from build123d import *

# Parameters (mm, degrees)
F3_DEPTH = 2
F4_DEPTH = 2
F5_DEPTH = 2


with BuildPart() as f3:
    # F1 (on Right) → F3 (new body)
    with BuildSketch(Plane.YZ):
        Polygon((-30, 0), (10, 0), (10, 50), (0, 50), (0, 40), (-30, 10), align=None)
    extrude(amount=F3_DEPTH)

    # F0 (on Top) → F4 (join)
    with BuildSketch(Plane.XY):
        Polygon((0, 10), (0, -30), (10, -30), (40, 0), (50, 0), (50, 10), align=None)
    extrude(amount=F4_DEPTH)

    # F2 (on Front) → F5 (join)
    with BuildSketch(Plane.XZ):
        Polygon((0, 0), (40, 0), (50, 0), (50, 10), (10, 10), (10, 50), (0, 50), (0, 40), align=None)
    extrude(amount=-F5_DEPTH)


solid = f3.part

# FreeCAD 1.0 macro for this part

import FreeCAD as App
import Part
import Sketcher
Q = App.Units.Quantity

doc = App.newDocument("Part")
body = doc.addObject("PartDesign::Body", "Body")

# Sketch on YZ plane
sketch1 = body.newObject("Sketcher::SketchObject", "Sketch")
sketch1.AttachmentSupport = (doc.getObject("YZ_Plane"), [""])
sketch1.MapMode = "FlatFace"
sketch1.addGeometry([
    Part.LineSegment(App.Vector(-30, 0, 0), App.Vector(10, 0, 0)),  # 0
    Part.LineSegment(App.Vector(10, 0, 0), App.Vector(10, 50, 0)),  # 1
    Part.LineSegment(App.Vector(10, 50, 0), App.Vector(0, 50, 0)),  # 2
    Part.LineSegment(App.Vector(0, 50, 0), App.Vector(0, 40, 0)),  # 3
    Part.LineSegment(App.Vector(0, 40, 0), App.Vector(-30, 10, 0)),  # 4
    Part.LineSegment(App.Vector(-30, 10, 0), App.Vector(-30, 0, 0)),  # 5
], False)
sketch1.addConstraint([
    Sketcher.Constraint("Coincident", 0, 2, 1, 1),
    Sketcher.Constraint("Coincident", 1, 2, 2, 1),
    Sketcher.Constraint("Coincident", 2, 2, 3, 1),
    Sketcher.Constraint("Coincident", 3, 2, 4, 1),
    Sketcher.Constraint("Coincident", 4, 2, 5, 1),
    Sketcher.Constraint("Coincident", 5, 2, 0, 1),
    Sketcher.Constraint("Horizontal", 0),
    Sketcher.Constraint("Vertical", 1),
    Sketcher.Constraint("Horizontal", 2),
    Sketcher.Constraint("Vertical", 3),
    Sketcher.Constraint("Vertical", 5),
    Sketcher.Constraint("PointOnObject", 0, 2, -1),
    Sketcher.Constraint("PointOnObject", 2, 2, -2),
    Sketcher.Constraint("Equal", 2, 3),
    Sketcher.Constraint("Equal", 3, 5),
    Sketcher.Constraint("DistanceX", 0, 1, 0, 2, Q("40 mm")),
    Sketcher.Constraint("DistanceX", 2, 2, 2, 1, Q("10 mm")),
    Sketcher.Constraint("DistanceY", 1, 1, 1, 2, Q("50 mm")),
])
pad1 = body.newObject("PartDesign::Pad", "Pad")
pad1.Profile = sketch1
pad1.Length = 2

# Sketch on XY plane
sketch2 = body.newObject("Sketcher::SketchObject", "Sketch001")
sketch2.AttachmentSupport = (doc.getObject("XY_Plane"), [""])
sketch2.MapMode = "FlatFace"
sketch2.addGeometry([
    Part.LineSegment(App.Vector(0, 10, 0), App.Vector(0, -30, 0)),  # 0
    Part.LineSegment(App.Vector(0, -30, 0), App.Vector(10, -30, 0)),  # 1
    Part.LineSegment(App.Vector(10, -30, 0), App.Vector(40, 0, 0)),  # 2
    Part.LineSegment(App.Vector(40, 0, 0), App.Vector(50, 0, 0)),  # 3
    Part.LineSegment(App.Vector(50, 0, 0), App.Vector(50, 10, 0)),  # 4
    Part.LineSegment(App.Vector(50, 10, 0), App.Vector(0, 10, 0)),  # 5
], False)
sketch2.addConstraint([
    Sketcher.Constraint("Coincident", 0, 2, 1, 1),
    Sketcher.Constraint("Coincident", 1, 2, 2, 1),
    Sketcher.Constraint("Coincident", 2, 2, 3, 1),
    Sketcher.Constraint("Coincident", 3, 2, 4, 1),
    Sketcher.Constraint("Coincident", 4, 2, 5, 1),
    Sketcher.Constraint("Coincident", 5, 2, 0, 1),
    Sketcher.Constraint("Vertical", 0),
    Sketcher.Constraint("Horizontal", 1),
    Sketcher.Constraint("Horizontal", 3),
    Sketcher.Constraint("Vertical", 4),
    Sketcher.Constraint("Horizontal", 5),
    Sketcher.Constraint("PointOnObject", 0, 2, -2),
    Sketcher.Constraint("PointOnObject", 2, 2, -1),
    Sketcher.Constraint("Equal", 1, 3),
    Sketcher.Constraint("Equal", 3, 4),
    Sketcher.Constraint("DistanceX", 1, 1, 1, 2, Q("10 mm")),
    Sketcher.Constraint("DistanceX", 5, 2, 5, 1, Q("50 mm")),
    Sketcher.Constraint("DistanceY", 0, 2, 0, 1, Q("40 mm")),
])
pad2 = body.newObject("PartDesign::Pad", "Pad001")
pad2.Profile = sketch2
pad2.Length = 2

# Sketch on XZ plane
sketch3 = body.newObject("Sketcher::SketchObject", "Sketch002")
sketch3.AttachmentSupport = (doc.getObject("XZ_Plane"), [""])
sketch3.MapMode = "FlatFace"
sketch3.addGeometry([
    Part.LineSegment(App.Vector(0, 0, 0), App.Vector(50, 0, 0)),  # 0
    Part.LineSegment(App.Vector(50, 0, 0), App.Vector(50, 10, 0)),  # 1
    Part.LineSegment(App.Vector(50, 10, 0), App.Vector(10, 10, 0)),  # 2
    Part.LineSegment(App.Vector(10, 10, 0), App.Vector(10, 50, 0)),  # 3
    Part.LineSegment(App.Vector(10, 50, 0), App.Vector(0, 50, 0)),  # 4
    Part.LineSegment(App.Vector(0, 50, 0), App.Vector(0, 0, 0)),  # 5
], False)
sketch3.addConstraint([
    Sketcher.Constraint("Coincident", 0, 2, 1, 1),
    Sketcher.Constraint("Coincident", 1, 2, 2, 1),
    Sketcher.Constraint("Coincident", 2, 2, 3, 1),
    Sketcher.Constraint("Coincident", 3, 2, 4, 1),
    Sketcher.Constraint("Coincident", 4, 2, 5, 1),
    Sketcher.Constraint("Coincident", 5, 2, 0, 1),
    Sketcher.Constraint("Horizontal", 0),
    Sketcher.Constraint("Vertical", 1),
    Sketcher.Constraint("Horizontal", 2),
    Sketcher.Constraint("Vertical", 3),
    Sketcher.Constraint("Horizontal", 4),
    Sketcher.Constraint("Vertical", 5),
    Sketcher.Constraint("Coincident", 5, 2, -1, 1),
    Sketcher.Constraint("Equal", 4, 1),
    Sketcher.Constraint("Equal", 2, 3),
    Sketcher.Constraint("DistanceX", 0, 1, 0, 2, Q("50 mm")),
    Sketcher.Constraint("DistanceX", 2, 2, 2, 1, Q("40 mm")),
])
pad3 = body.newObject("PartDesign::Pad", "Pad002")
pad3.Profile = sketch3
pad3.Length = 2
pad3.Reversed = True

doc.recompute()
